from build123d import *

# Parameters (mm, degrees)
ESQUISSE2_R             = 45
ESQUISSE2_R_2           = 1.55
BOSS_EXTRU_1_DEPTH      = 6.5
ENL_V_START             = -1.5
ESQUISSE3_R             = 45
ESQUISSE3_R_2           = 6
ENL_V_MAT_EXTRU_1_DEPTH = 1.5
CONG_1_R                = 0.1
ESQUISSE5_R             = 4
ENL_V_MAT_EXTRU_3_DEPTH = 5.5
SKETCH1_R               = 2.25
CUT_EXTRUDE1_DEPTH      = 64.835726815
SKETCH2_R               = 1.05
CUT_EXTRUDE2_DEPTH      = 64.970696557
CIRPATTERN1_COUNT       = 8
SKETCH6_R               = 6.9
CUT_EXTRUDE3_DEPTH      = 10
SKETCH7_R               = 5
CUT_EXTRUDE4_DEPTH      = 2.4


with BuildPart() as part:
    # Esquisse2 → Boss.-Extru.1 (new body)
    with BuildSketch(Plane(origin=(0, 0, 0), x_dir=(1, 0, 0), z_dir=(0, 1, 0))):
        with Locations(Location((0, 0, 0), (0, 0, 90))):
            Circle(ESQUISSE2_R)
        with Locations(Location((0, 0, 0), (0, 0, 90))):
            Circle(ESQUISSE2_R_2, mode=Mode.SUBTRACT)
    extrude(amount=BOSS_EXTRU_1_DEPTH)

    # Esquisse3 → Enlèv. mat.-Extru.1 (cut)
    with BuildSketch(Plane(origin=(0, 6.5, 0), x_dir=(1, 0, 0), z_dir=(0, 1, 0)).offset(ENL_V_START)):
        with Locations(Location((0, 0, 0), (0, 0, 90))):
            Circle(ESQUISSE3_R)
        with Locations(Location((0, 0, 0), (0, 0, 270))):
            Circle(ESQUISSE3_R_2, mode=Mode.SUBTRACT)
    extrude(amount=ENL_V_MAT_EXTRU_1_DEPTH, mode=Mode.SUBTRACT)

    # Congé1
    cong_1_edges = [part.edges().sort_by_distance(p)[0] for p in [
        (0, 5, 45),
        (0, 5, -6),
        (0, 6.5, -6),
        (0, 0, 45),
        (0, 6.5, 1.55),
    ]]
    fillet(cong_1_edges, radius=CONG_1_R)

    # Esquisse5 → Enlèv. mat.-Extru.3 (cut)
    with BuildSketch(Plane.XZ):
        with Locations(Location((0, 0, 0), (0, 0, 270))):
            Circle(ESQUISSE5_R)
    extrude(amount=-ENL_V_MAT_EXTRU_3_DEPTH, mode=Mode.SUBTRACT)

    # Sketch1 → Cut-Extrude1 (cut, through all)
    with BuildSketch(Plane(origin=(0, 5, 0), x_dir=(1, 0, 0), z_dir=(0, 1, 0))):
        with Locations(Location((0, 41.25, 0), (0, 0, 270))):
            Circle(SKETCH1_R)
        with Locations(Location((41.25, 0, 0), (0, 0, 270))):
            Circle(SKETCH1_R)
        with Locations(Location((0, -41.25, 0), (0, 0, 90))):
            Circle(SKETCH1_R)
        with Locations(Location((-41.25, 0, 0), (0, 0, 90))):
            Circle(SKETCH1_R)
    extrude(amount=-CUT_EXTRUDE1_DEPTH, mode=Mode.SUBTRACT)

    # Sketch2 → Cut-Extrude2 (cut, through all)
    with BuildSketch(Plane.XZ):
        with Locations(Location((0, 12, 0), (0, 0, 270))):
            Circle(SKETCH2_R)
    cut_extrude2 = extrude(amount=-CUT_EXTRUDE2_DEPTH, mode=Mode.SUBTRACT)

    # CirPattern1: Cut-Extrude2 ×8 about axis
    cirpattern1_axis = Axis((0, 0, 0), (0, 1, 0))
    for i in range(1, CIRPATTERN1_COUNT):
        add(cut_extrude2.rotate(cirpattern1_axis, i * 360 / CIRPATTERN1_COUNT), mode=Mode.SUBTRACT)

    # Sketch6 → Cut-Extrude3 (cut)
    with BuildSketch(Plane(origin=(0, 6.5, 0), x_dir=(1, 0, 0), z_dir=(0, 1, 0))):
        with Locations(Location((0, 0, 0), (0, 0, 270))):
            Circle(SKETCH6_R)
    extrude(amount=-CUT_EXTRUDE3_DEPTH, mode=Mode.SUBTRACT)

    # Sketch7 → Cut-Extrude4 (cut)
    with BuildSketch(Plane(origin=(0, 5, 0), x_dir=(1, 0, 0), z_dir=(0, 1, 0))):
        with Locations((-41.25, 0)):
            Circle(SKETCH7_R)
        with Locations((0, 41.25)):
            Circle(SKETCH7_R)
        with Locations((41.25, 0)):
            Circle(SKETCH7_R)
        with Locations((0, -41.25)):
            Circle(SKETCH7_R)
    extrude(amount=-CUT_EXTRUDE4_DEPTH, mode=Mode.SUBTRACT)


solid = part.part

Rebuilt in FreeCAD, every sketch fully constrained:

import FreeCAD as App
import Part
import Sketcher
from FreeCAD import Vector


def edges_at(feature, points):
    """Names of the edges that pass closest to the given points."""
    edges = feature.Shape.Edges
    near = lambda p: min(range(len(edges)), key=lambda i: edges[i].distToShape(Part.Vertex(*p))[0])
    return sorted({f"Edge{near(p) + 1}" for p in points})

doc = App.newDocument("Part")
body = doc.addObject("PartDesign::Body", "Body")

sketch1 = body.newObject("Sketcher::SketchObject", "Sketch")
sketch1.AttachmentSupport = (doc.getObject("XZ_Plane"), [""])
sketch1.MapMode = "FlatFace"
sketch1.addGeometry(Part.Circle(Vector(0, 0, 0), Vector(0, 0, 1), 45), False)
sketch1.addGeometry(Part.Circle(Vector(0, 0, 0), Vector(0, 0, 1), 1.6), False)
sketch1.addConstraint(Sketcher.Constraint("Coincident", 0, 3, -1, 1))
sketch1.addConstraint(Sketcher.Constraint("Coincident", 1, 3, -1, 1))
sketch1.addConstraint(Sketcher.Constraint("Diameter", 0, 90.0))
sketch1.addConstraint(Sketcher.Constraint("Diameter", 1, 3.1))
pad1 = body.newObject("PartDesign::Pad", "Pad")
pad1.Profile = sketch1
pad1.Length = 6.5
pad1.Reversed = True

sketch2 = body.newObject("Sketcher::SketchObject", "Sketch001")
sketch2.AttachmentSupport = (doc.getObject("XZ_Plane"), [""])
sketch2.MapMode = "FlatFace"
sketch2.AttachmentOffset = App.Placement(Vector(0, 0, -5), App.Rotation())
sketch2.addGeometry(Part.Circle(Vector(0, 0, 0), Vector(0, 0, 1), 45), False)
sketch2.addGeometry(Part.Circle(Vector(0, 0, 0), Vector(0, 0, 1), 6), False)
sketch2.addConstraint(Sketcher.Constraint("Coincident", 0, 3, -1, 1))
sketch2.addConstraint(Sketcher.Constraint("Coincident", 1, 3, -1, 1))
sketch2.addConstraint(Sketcher.Constraint("Diameter", 0, 90.0))
sketch2.addConstraint(Sketcher.Constraint("Diameter", 1, 12.0))
pocket1 = body.newObject("PartDesign::Pocket", "Pocket")
pocket1.Profile = sketch2
pocket1.Length = 1.5
doc.recompute()

fillet = body.newObject("PartDesign::Fillet", "Fillet")
fillet.Base = (pocket1, edges_at(pocket1, [
    (0, 5, 45),
    (0, 5, -6),
    (0, 6.5, -6),
    (0, 0, 45),
    (0, 6.5, 1.55),
]))
fillet.Radius = 0.1

sketch3 = body.newObject("Sketcher::SketchObject", "Sketch002")
sketch3.AttachmentSupport = (doc.getObject("XZ_Plane"), [""])
sketch3.MapMode = "FlatFace"
sketch3.addGeometry(Part.Circle(Vector(0, 0, 0), Vector(0, 0, 1), 4), False)
sketch3.addConstraint(Sketcher.Constraint("Coincident", 0, 3, -1, 1))
sketch3.addConstraint(Sketcher.Constraint("Diameter", 0, 8.0))
pocket2 = body.newObject("PartDesign::Pocket", "Pocket001")
pocket2.Profile = sketch3
pocket2.Length = 5.5

sketch4 = body.newObject("Sketcher::SketchObject", "Sketch003")
sketch4.AttachmentSupport = (doc.getObject("XZ_Plane"), [""])
sketch4.MapMode = "FlatFace"
sketch4.AttachmentOffset = App.Placement(Vector(0, 0, -5), App.Rotation())
sketch4.addGeometry(Part.Circle(Vector(0, -41.2, 0), Vector(0, 0, 1), 2.2), False)
sketch4.addGeometry(Part.Circle(Vector(41.2, 0, 0), Vector(0, 0, 1), 2.2), False)
sketch4.addGeometry(Part.Circle(Vector(0, 41.2, 0), Vector(0, 0, 1), 2.2), False)
sketch4.addGeometry(Part.Circle(Vector(-41.2, 0, 0), Vector(0, 0, 1), 2.2), False)
sketch4.addConstraint(Sketcher.Constraint("Equal", 0, 1))
sketch4.addConstraint(Sketcher.Constraint("Equal", 1, 2))
sketch4.addConstraint(Sketcher.Constraint("Equal", 2, 3))
sketch4.addConstraint(Sketcher.Constraint("Symmetric", 0, 3, 2, 3, -1, 1))
sketch4.addConstraint(Sketcher.Constraint("Symmetric", 1, 3, 3, 3, -1, 1))
sketch4.addConstraint(Sketcher.Constraint("PointOnObject", 0, 3, -2))
sketch4.addConstraint(Sketcher.Constraint("PointOnObject", 1, 3, -1))
sketch4.addConstraint(Sketcher.Constraint("Diameter", 0, 4.5))
sketch4.addConstraint(Sketcher.Constraint("DistanceY", 0, 3, 2, 3, 82.5))
sketch4.addConstraint(Sketcher.Constraint("DistanceX", 3, 3, 1, 3, 82.5))
pocket3 = body.newObject("PartDesign::Pocket", "Pocket002")
pocket3.Profile = sketch4
pocket3.Type = "ThroughAll"
pocket3.Reversed = True

sketch5 = body.newObject("Sketcher::SketchObject", "Sketch004")
sketch5.AttachmentSupport = (doc.getObject("XZ_Plane"), [""])
sketch5.MapMode = "FlatFace"
sketch5.addGeometry(Part.Circle(Vector(0, 12, 0), Vector(0, 0, 1), 1.1), False)
sketch5.addConstraint(Sketcher.Constraint("PointOnObject", 0, 3, -2))
sketch5.addConstraint(Sketcher.Constraint("Diameter", 0, 2.1))
sketch5.addConstraint(Sketcher.Constraint("DistanceY", -1, 1, 0, 3, 12.0))
pocket4 = body.newObject("PartDesign::Pocket", "Pocket003")
pocket4.Profile = sketch5
pocket4.Type = "ThroughAll"
doc.recompute()

polarpattern = body.newObject("PartDesign::PolarPattern", "PolarPattern")
polarpattern.Originals = [pocket4]
polarpattern.Axis = (doc.getObject("Y_Axis"), [""])
polarpattern.Angle = 360
polarpattern.Occurrences = 8
body.Tip = polarpattern

sketch6 = body.newObject("Sketcher::SketchObject", "Sketch005")
sketch6.AttachmentSupport = (doc.getObject("XZ_Plane"), [""])
sketch6.MapMode = "FlatFace"
sketch6.AttachmentOffset = App.Placement(Vector(0, 0, -6.5), App.Rotation())
sketch6.addGeometry(Part.Circle(Vector(0, 0, 0), Vector(0, 0, 1), 7), False)
sketch6.addConstraint(Sketcher.Constraint("Coincident", 0, 3, -1, 1))
sketch6.addConstraint(Sketcher.Constraint("Diameter", 0, 13.8))
pocket5 = body.newObject("PartDesign::Pocket", "Pocket004")
pocket5.Profile = sketch6
pocket5.Length = 10
pocket5.Reversed = True

sketch7 = body.newObject("Sketcher::SketchObject", "Sketch006")
sketch7.AttachmentSupport = (doc.getObject("XZ_Plane"), [""])
sketch7.MapMode = "FlatFace"
sketch7.AttachmentOffset = App.Placement(Vector(0, 0, -5), App.Rotation())
sketch7.addGeometry(Part.Circle(Vector(-41, 0, 0), Vector(0, 0, 1), 5), False)
sketch7.addGeometry(Part.Circle(Vector(0, -41, 0), Vector(0, 0, 1), 5), False)
sketch7.addGeometry(Part.Circle(Vector(41, 0, 0), Vector(0, 0, 1), 5), False)
sketch7.addGeometry(Part.Circle(Vector(0, 41, 0), Vector(0, 0, 1), 5), False)
sketch7.addConstraint(Sketcher.Constraint("Equal", 0, 1))
sketch7.addConstraint(Sketcher.Constraint("Equal", 1, 2))
sketch7.addConstraint(Sketcher.Constraint("Equal", 2, 3))
sketch7.addConstraint(Sketcher.Constraint("Symmetric", 0, 3, 2, 3, -1, 1))
sketch7.addConstraint(Sketcher.Constraint("Symmetric", 1, 3, 3, 3, -1, 1))
sketch7.addConstraint(Sketcher.Constraint("PointOnObject", 0, 3, -1))
sketch7.addConstraint(Sketcher.Constraint("PointOnObject", 1, 3, -2))
sketch7.addConstraint(Sketcher.Constraint("Diameter", 0, 10.0))
sketch7.addConstraint(Sketcher.Constraint("DistanceX", 0, 3, 2, 3, 82.5))
sketch7.addConstraint(Sketcher.Constraint("DistanceY", 1, 3, 3, 3, 82.5))
pocket6 = body.newObject("PartDesign::Pocket", "Pocket005")
pocket6.Profile = sketch7
pocket6.Length = 2.4
pocket6.Reversed = True

doc.recompute()
